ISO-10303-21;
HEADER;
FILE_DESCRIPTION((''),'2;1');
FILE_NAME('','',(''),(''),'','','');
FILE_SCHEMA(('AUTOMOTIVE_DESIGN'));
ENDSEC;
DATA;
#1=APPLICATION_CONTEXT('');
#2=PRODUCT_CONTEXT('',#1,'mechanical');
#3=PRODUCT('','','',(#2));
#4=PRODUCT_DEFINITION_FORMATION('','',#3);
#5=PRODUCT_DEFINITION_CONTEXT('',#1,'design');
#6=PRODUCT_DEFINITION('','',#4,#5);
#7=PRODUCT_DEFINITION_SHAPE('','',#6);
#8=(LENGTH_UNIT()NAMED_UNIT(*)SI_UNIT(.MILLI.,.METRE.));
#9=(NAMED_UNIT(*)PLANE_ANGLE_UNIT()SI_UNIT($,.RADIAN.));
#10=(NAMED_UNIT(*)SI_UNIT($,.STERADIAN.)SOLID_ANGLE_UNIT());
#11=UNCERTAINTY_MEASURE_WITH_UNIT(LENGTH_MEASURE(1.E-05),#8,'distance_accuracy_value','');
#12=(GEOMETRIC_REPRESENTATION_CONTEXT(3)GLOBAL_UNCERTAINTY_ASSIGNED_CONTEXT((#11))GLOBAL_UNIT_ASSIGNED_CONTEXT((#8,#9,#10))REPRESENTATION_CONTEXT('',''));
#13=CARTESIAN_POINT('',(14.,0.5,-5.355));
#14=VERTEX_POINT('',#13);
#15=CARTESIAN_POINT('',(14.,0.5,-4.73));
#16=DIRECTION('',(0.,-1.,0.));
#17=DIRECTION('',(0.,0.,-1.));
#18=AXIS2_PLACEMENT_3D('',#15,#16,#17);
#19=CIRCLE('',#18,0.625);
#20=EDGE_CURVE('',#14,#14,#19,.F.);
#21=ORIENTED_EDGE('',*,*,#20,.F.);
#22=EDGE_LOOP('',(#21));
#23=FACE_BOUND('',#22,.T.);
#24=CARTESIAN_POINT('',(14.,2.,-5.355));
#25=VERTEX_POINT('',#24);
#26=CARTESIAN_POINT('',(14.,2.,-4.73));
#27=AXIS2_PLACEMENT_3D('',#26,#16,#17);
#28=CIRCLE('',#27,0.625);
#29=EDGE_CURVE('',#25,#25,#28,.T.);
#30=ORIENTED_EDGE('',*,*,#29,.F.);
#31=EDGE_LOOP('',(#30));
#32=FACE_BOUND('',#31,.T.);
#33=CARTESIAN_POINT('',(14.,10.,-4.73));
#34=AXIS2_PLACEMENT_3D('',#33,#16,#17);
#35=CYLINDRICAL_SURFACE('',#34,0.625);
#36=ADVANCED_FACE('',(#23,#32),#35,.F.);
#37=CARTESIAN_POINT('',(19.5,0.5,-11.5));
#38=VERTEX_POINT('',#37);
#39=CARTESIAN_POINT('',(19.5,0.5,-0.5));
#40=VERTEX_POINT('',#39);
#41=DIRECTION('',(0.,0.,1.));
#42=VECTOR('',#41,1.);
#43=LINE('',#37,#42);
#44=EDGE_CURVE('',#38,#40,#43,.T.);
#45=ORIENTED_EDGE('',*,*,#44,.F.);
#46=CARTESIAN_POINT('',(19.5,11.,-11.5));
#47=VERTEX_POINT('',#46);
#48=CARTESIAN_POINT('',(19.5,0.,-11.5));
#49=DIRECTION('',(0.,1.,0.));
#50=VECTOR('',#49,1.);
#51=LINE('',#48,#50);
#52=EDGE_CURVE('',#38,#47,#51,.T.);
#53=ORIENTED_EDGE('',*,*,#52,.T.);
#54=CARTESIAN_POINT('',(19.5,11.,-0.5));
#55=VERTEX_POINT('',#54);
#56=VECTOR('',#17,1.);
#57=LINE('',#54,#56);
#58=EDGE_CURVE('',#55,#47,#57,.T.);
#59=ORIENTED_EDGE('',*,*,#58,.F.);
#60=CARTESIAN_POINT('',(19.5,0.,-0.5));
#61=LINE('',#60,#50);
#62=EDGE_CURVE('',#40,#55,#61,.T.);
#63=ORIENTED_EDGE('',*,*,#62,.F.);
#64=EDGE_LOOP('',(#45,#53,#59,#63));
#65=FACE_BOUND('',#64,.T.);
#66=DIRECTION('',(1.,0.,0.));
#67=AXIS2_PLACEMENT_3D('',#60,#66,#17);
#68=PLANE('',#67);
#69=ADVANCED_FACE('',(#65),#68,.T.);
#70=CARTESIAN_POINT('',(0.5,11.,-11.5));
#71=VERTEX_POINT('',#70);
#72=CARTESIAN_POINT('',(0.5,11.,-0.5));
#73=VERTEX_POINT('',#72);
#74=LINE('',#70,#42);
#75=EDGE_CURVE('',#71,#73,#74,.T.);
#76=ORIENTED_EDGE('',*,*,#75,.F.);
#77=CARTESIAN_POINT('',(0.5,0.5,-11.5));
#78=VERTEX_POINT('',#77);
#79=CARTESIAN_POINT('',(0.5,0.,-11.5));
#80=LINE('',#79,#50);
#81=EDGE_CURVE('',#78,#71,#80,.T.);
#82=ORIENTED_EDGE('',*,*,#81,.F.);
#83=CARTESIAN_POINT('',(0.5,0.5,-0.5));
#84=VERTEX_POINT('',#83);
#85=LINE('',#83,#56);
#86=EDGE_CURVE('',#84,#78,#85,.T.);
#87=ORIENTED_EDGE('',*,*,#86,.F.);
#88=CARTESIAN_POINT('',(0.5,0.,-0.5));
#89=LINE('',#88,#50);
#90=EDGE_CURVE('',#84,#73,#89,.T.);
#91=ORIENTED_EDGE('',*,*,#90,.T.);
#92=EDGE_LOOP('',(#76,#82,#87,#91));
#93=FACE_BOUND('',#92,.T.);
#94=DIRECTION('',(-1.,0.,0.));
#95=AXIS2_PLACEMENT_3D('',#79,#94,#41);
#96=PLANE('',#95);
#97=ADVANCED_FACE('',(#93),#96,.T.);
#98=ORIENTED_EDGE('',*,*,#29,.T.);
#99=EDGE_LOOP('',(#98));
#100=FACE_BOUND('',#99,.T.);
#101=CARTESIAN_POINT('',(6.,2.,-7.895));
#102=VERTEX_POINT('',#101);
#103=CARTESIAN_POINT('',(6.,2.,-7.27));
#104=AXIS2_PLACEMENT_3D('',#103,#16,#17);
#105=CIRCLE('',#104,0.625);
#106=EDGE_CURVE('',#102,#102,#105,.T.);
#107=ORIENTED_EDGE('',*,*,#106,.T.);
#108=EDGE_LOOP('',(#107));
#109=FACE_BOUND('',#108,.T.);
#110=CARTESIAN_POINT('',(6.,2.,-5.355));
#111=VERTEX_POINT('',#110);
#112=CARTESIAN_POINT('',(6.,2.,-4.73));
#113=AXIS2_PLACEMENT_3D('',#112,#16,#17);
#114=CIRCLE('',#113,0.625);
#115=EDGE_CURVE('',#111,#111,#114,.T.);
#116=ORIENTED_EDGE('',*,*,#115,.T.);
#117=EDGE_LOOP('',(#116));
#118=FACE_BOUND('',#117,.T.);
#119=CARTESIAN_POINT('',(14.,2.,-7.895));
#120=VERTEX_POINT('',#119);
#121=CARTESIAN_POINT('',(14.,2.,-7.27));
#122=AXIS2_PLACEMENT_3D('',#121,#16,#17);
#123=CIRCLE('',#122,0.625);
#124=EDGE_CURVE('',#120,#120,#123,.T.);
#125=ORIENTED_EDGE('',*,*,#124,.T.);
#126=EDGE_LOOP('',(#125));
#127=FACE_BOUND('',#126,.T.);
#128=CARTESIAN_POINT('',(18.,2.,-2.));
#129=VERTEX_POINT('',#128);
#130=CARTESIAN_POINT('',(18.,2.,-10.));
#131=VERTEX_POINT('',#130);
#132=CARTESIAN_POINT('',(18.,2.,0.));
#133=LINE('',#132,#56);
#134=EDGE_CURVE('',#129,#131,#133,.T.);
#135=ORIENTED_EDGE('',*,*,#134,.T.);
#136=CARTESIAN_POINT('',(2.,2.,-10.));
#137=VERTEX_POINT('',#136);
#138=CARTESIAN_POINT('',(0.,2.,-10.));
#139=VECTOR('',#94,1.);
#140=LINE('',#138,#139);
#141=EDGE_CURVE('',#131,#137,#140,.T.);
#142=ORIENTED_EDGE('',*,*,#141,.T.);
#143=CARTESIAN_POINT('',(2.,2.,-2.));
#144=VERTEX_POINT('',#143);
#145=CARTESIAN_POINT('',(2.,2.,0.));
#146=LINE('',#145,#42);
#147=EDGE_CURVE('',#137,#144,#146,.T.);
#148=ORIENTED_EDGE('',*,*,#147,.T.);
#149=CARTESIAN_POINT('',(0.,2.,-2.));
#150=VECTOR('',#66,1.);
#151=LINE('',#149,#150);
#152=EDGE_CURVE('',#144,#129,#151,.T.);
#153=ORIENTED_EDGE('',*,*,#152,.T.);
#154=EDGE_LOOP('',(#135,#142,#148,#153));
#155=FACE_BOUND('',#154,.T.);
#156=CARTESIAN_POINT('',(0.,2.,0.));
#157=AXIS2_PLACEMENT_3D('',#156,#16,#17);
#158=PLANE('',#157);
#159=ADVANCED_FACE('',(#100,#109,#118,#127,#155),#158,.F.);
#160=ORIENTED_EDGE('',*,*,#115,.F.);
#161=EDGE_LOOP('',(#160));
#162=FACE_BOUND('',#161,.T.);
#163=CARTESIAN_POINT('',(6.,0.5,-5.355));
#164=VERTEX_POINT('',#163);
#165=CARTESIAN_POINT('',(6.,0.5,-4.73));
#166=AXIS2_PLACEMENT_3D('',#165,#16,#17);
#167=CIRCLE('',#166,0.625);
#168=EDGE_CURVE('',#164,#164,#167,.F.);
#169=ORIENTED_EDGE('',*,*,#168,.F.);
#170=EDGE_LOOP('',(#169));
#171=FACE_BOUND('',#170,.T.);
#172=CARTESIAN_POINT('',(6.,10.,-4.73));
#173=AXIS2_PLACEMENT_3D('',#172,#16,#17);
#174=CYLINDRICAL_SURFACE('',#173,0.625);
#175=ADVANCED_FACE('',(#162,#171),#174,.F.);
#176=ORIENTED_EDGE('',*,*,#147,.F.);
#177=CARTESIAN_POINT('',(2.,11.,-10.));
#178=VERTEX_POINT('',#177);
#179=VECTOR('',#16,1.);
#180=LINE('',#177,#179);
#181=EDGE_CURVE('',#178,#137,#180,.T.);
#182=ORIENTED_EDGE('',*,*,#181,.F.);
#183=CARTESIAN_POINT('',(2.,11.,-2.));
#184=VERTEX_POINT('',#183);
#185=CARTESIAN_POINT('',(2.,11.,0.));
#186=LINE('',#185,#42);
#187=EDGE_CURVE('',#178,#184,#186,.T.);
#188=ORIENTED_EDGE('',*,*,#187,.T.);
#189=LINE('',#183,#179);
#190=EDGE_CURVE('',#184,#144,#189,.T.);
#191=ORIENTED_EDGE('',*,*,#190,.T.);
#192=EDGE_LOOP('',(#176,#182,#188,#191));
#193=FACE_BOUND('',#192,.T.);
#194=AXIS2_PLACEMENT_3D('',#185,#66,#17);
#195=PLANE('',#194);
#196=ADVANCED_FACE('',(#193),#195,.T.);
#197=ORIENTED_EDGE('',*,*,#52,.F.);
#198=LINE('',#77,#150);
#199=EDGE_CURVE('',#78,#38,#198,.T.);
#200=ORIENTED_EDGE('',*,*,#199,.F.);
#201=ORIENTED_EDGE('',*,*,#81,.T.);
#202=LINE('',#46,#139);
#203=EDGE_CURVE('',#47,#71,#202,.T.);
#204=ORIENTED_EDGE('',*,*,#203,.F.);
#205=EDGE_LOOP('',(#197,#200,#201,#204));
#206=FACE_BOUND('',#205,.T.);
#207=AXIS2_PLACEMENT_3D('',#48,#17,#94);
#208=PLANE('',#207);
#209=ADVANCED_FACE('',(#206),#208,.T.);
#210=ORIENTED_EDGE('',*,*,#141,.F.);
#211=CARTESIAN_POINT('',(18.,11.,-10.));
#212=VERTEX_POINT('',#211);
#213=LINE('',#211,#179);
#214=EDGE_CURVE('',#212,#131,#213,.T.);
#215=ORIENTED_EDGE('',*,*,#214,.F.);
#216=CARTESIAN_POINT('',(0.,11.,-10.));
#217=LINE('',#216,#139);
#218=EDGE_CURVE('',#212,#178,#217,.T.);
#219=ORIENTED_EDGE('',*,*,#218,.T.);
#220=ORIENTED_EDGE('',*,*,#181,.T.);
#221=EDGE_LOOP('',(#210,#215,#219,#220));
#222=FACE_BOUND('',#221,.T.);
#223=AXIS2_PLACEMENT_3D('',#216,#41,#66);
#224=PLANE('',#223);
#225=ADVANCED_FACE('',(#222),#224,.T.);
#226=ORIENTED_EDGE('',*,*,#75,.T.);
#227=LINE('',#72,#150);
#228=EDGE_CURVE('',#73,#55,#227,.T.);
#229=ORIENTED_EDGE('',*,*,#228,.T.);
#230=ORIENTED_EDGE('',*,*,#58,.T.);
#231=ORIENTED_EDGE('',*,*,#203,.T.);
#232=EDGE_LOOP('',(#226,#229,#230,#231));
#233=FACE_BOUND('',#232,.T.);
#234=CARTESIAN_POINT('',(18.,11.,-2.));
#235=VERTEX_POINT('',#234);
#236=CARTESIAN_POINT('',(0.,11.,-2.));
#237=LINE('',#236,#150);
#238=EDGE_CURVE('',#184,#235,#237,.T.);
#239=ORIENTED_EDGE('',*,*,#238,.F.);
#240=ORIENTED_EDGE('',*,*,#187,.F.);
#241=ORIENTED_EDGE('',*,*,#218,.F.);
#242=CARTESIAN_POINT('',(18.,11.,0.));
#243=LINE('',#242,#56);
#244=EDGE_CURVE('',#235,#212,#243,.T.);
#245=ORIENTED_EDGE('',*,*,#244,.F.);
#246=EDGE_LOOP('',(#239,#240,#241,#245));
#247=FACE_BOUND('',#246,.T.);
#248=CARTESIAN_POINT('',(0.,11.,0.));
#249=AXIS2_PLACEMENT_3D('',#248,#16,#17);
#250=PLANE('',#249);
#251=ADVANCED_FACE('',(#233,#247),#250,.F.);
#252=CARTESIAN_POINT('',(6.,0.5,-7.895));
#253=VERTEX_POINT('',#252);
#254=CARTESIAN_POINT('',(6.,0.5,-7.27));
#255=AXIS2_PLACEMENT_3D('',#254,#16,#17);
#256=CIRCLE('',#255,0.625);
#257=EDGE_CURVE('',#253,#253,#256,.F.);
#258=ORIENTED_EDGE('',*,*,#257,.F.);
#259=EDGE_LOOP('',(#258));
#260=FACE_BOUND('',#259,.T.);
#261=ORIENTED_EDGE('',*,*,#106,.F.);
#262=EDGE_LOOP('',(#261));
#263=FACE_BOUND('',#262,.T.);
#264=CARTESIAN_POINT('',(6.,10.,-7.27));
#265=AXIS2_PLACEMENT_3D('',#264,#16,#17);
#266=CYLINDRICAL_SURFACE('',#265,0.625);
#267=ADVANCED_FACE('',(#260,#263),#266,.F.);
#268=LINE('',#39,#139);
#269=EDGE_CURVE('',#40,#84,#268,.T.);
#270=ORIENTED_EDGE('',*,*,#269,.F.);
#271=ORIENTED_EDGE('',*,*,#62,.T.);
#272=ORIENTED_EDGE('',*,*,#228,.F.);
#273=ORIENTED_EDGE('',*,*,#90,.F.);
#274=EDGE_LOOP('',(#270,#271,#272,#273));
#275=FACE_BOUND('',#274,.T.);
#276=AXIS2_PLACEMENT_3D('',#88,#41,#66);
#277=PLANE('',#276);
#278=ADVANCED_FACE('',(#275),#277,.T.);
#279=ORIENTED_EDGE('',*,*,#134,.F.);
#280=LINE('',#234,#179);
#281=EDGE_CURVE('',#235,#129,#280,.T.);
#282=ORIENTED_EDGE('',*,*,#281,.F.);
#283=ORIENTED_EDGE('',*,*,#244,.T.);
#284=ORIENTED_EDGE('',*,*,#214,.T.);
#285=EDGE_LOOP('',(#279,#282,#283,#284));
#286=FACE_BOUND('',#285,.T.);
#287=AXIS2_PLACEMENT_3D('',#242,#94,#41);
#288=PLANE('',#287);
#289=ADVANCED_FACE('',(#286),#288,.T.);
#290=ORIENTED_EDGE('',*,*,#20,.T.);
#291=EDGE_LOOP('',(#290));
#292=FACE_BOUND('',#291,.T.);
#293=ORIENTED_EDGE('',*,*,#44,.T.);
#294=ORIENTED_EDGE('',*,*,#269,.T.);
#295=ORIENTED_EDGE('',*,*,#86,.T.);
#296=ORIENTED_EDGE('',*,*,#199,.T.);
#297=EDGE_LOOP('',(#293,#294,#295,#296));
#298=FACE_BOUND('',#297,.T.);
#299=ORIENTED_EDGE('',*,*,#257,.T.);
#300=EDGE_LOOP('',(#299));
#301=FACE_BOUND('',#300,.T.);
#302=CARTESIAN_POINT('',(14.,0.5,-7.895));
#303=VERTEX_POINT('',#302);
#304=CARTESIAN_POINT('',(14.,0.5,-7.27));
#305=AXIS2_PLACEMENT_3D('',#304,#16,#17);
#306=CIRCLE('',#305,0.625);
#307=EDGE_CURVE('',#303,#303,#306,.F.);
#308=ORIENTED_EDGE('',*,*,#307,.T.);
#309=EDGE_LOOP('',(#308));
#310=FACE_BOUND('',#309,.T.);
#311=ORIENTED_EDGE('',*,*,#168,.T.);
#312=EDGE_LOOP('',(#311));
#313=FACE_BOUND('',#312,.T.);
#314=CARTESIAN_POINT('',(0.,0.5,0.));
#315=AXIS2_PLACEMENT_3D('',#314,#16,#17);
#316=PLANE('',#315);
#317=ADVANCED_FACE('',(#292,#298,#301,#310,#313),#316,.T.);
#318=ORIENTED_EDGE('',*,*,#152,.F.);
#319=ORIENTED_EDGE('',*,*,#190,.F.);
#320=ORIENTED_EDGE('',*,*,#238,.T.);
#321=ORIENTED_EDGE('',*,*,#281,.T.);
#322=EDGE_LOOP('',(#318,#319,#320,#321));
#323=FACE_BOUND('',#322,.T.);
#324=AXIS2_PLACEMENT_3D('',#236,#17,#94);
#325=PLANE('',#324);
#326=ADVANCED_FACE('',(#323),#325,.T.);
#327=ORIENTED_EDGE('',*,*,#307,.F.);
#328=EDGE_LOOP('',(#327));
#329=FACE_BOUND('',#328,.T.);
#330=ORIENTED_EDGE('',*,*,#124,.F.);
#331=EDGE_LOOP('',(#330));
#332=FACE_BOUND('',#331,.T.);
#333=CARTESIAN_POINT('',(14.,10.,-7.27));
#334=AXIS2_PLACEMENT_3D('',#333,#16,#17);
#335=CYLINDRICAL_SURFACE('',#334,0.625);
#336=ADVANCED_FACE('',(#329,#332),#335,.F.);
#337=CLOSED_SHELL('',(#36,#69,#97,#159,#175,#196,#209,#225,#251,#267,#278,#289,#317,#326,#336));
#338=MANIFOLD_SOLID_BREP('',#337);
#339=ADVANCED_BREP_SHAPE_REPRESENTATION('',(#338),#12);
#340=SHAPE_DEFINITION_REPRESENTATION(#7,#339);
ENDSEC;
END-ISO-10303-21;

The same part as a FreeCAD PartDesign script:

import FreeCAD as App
import Part
import Sketcher


def faces_at(feature, points):
    """Names of the faces that lie closest to the given points."""
    faces = feature.Shape.Faces
    near = lambda p: min(range(len(faces)), key=lambda i: faces[i].distToShape(Part.Vertex(*p))[0])
    return sorted({f"Face{near(p) + 1}" for p in points})


def add_polygon(sketch, points):
    """Adds a closed chain of lines whose ends are joined by coincident constraints."""
    first, n = sketch.GeometryCount, len(points)
    for a, b in zip(points, points[1:] + points[:1]):
        sketch.addGeometry(Part.LineSegment(App.Vector(*a, 0), App.Vector(*b, 0)), False)
    for i in range(n):
        sketch.addConstraint(Sketcher.Constraint("Coincident", first + i, 2, first + (i + 1) % n, 1))

doc = App.newDocument("Part")
params = doc.addObject("Spreadsheet::Sheet", "Params")
for row, (alias, value) in enumerate([
    ("sketch1_width", "20 mm"),
    ("sketch1_height", "12 mm"),
    ("pad1_length", "11 mm"),
    ("thickness_wall", "2 mm"),
    ("sketch2_diameter", "1.25 mm"),
    ("pocket1_length", "10 mm"),
    ("linearpattern_pitch", "8 mm"),
    ("sketch3_width", "20 mm"),
    ("sketch3_width2", "19 mm"),
    ("sketch3_height", "12 mm"),
    ("sketch3_height2", "11 mm"),
    ("sketch4_width", "19 mm"),
    ("sketch4_height", "11 mm"),
    ("pocket3_length", "0.5 mm"),
], start=1):
    params.set(f"A{row}", alias)
    params.set(f"B{row}", "=" + value)
    params.setAlias(f"B{row}", alias)

body = doc.addObject("PartDesign::Body", "Body")

# Sketch on XZ plane
sketch1 = doc.addObject("Sketcher::SketchObject", "Sketch")
body.addObject(sketch1)
sketch1.AttachmentSupport = (doc.XZ_Plane, [""])
sketch1.MapMode = "FlatFace"
add_polygon(sketch1, [(0, -12), (0, 0), (20, 0), (20, -12)])  # lines 0-3
sketch1.addConstraint(Sketcher.Constraint("Vertical", 0))
sketch1.addConstraint(Sketcher.Constraint("Horizontal", 1))
sketch1.addConstraint(Sketcher.Constraint("Vertical", 2))
sketch1.addConstraint(Sketcher.Constraint("Horizontal", 3))
sketch1.addConstraint(Sketcher.Constraint("Coincident", 0, 2, -1, 1))
sketch1.addConstraint(Sketcher.Constraint("DistanceX", 1, 1, 1, 2, 20.0))
sketch1.addConstraint(Sketcher.Constraint("DistanceY", 0, 1, 0, 2, 12.0))
sketch1.setExpression("Constraints[9]", "Params.sketch1_width")
sketch1.setExpression("Constraints[10]", "Params.sketch1_height")
pad1 = doc.addObject("PartDesign::Pad", "Pad")
body.addObject(pad1)
pad1.Profile = sketch1
pad1.setExpression("Length", "Params.pad1_length")
pad1.Reversed = True
doc.recompute()

thickness = doc.addObject("PartDesign::Thickness", "Thickness")
body.addObject(thickness)
thickness.Base = (pad1, faces_at(pad1, [(10, 11, -6)]))
thickness.setExpression("Value", "Params.thickness_wall")
thickness.Reversed = True
thickness.Join = "Intersection"

# Sketch on XZ plane
sketch2 = doc.addObject("Sketcher::SketchObject", "Sketch001")
body.addObject(sketch2)
sketch2.AttachmentSupport = (doc.XZ_Plane, [""])
sketch2.MapMode = "FlatFace"
sketch2.addGeometry(Part.Circle(App.Vector(6, -4.73, 0), App.Vector(0, 0, 1), 0.625), False)
sketch2.addGeometry(Part.Circle(App.Vector(6, -7.27, 0), App.Vector(0, 0, 1), 0.625), False)
sketch2.addConstraint(Sketcher.Constraint("Equal", 0, 1))
sketch2.addConstraint(Sketcher.Constraint("Vertical", 0, 3, 1, 3))
sketch2.addConstraint(Sketcher.Constraint("Diameter", 0, 1.25))
sketch2.addConstraint(Sketcher.Constraint("DistanceX", -1, 1, 0, 3, 6.0))
sketch2.addConstraint(Sketcher.Constraint("DistanceY", 0, 3, -1, 1, 4.73))
sketch2.addConstraint(Sketcher.Constraint("DistanceY", 1, 3, -1, 1, 7.27))
sketch2.setExpression("Constraints[2]", "Params.sketch2_diameter")
pocket1 = doc.addObject("PartDesign::Pocket", "Pocket")
body.addObject(pocket1)
pocket1.Profile = sketch2
pocket1.setExpression("Length", "Params.pocket1_length")
doc.recompute()

linearpattern = doc.addObject("PartDesign::LinearPattern", "LinearPattern")
body.addObject(linearpattern)
linearpattern.Originals = [pocket1]
linearpattern.Direction = (doc.X_Axis, [""])
linearpattern.Mode = "offset"
linearpattern.setExpression("Offset", "Params.linearpattern_pitch")
linearpattern.Occurrences = 2
body.Tip = linearpattern

# Sketch on XZ plane
sketch3 = doc.addObject("Sketcher::SketchObject", "Sketch002")
body.addObject(sketch3)
sketch3.AttachmentSupport = (doc.XZ_Plane, [""])
sketch3.MapMode = "FlatFace"
sketch3.AttachmentOffset = App.Placement(App.Vector(0, 0, -11), App.Rotation())
add_polygon(sketch3, [(0, -12), (0, 0), (20, 0), (20, -12)])  # lines 0-3
add_polygon(sketch3, [(19.5, -0.5), (0.5, -0.5), (0.5, -11.5), (19.5, -11.5)])  # lines 4-7
sketch3.addConstraint(Sketcher.Constraint("Vertical", 0))
sketch3.addConstraint(Sketcher.Constraint("Horizontal", 1))
sketch3.addConstraint(Sketcher.Constraint("Vertical", 2))
sketch3.addConstraint(Sketcher.Constraint("Horizontal", 3))
sketch3.addConstraint(Sketcher.Constraint("Horizontal", 4))
sketch3.addConstraint(Sketcher.Constraint("Vertical", 5))
sketch3.addConstraint(Sketcher.Constraint("Horizontal", 6))
sketch3.addConstraint(Sketcher.Constraint("Vertical", 7))
sketch3.addConstraint(Sketcher.Constraint("Coincident", 0, 2, -1, 1))
sketch3.addConstraint(Sketcher.Constraint("DistanceX", 1, 1, 1, 2, 20.0))
sketch3.addConstraint(Sketcher.Constraint("DistanceX", 4, 2, 4, 1, 19.0))
sketch3.addConstraint(Sketcher.Constraint("DistanceY", 0, 1, 0, 2, 12.0))
sketch3.addConstraint(Sketcher.Constraint("DistanceY", 5, 2, 5, 1, 11.0))
sketch3.addConstraint(Sketcher.Constraint("DistanceX", -1, 1, 4, 2, 0.5))
sketch3.addConstraint(Sketcher.Constraint("DistanceY", 4, 2, -1, 1, 0.5))
sketch3.setExpression("Constraints[17]", "Params.sketch3_width")
sketch3.setExpression("Constraints[18]", "Params.sketch3_width2")
sketch3.setExpression("Constraints[19]", "Params.sketch3_height")
sketch3.setExpression("Constraints[20]", "Params.sketch3_height2")
pocket2 = doc.addObject("PartDesign::Pocket", "Pocket001")
body.addObject(pocket2)
pocket2.Profile = sketch3
pocket2.Type = "ThroughAll"
pocket2.Reversed = True

# Sketch on XZ plane
sketch4 = doc.addObject("Sketcher::SketchObject", "Sketch003")
body.addObject(sketch4)
sketch4.AttachmentSupport = (doc.XZ_Plane, [""])
sketch4.MapMode = "FlatFace"
add_polygon(sketch4, [(0.5, -0.5), (0.5, -11.5), (19.5, -11.5), (19.5, -0.5)])  # lines 0-3
sketch4.addConstraint(Sketcher.Constraint("Vertical", 0))
sketch4.addConstraint(Sketcher.Constraint("Horizontal", 1))
sketch4.addConstraint(Sketcher.Constraint("Vertical", 2))
sketch4.addConstraint(Sketcher.Constraint("Horizontal", 3))
sketch4.addConstraint(Sketcher.Constraint("DistanceX", 1, 1, 1, 2, 19.0))
sketch4.addConstraint(Sketcher.Constraint("DistanceY", 0, 2, 0, 1, 11.0))
sketch4.addConstraint(Sketcher.Constraint("DistanceX", -1, 1, 0, 2, 0.5))
sketch4.addConstraint(Sketcher.Constraint("DistanceY", 0, 2, -1, 1, 11.5))
sketch4.setExpression("Constraints[8]", "Params.sketch4_width")
sketch4.setExpression("Constraints[9]", "Params.sketch4_height")
pocket3 = doc.addObject("PartDesign::Pocket", "Pocket002")
body.addObject(pocket3)
pocket3.Profile = sketch4
pocket3.setExpression("Length", "Params.pocket3_length")

doc.recompute()
